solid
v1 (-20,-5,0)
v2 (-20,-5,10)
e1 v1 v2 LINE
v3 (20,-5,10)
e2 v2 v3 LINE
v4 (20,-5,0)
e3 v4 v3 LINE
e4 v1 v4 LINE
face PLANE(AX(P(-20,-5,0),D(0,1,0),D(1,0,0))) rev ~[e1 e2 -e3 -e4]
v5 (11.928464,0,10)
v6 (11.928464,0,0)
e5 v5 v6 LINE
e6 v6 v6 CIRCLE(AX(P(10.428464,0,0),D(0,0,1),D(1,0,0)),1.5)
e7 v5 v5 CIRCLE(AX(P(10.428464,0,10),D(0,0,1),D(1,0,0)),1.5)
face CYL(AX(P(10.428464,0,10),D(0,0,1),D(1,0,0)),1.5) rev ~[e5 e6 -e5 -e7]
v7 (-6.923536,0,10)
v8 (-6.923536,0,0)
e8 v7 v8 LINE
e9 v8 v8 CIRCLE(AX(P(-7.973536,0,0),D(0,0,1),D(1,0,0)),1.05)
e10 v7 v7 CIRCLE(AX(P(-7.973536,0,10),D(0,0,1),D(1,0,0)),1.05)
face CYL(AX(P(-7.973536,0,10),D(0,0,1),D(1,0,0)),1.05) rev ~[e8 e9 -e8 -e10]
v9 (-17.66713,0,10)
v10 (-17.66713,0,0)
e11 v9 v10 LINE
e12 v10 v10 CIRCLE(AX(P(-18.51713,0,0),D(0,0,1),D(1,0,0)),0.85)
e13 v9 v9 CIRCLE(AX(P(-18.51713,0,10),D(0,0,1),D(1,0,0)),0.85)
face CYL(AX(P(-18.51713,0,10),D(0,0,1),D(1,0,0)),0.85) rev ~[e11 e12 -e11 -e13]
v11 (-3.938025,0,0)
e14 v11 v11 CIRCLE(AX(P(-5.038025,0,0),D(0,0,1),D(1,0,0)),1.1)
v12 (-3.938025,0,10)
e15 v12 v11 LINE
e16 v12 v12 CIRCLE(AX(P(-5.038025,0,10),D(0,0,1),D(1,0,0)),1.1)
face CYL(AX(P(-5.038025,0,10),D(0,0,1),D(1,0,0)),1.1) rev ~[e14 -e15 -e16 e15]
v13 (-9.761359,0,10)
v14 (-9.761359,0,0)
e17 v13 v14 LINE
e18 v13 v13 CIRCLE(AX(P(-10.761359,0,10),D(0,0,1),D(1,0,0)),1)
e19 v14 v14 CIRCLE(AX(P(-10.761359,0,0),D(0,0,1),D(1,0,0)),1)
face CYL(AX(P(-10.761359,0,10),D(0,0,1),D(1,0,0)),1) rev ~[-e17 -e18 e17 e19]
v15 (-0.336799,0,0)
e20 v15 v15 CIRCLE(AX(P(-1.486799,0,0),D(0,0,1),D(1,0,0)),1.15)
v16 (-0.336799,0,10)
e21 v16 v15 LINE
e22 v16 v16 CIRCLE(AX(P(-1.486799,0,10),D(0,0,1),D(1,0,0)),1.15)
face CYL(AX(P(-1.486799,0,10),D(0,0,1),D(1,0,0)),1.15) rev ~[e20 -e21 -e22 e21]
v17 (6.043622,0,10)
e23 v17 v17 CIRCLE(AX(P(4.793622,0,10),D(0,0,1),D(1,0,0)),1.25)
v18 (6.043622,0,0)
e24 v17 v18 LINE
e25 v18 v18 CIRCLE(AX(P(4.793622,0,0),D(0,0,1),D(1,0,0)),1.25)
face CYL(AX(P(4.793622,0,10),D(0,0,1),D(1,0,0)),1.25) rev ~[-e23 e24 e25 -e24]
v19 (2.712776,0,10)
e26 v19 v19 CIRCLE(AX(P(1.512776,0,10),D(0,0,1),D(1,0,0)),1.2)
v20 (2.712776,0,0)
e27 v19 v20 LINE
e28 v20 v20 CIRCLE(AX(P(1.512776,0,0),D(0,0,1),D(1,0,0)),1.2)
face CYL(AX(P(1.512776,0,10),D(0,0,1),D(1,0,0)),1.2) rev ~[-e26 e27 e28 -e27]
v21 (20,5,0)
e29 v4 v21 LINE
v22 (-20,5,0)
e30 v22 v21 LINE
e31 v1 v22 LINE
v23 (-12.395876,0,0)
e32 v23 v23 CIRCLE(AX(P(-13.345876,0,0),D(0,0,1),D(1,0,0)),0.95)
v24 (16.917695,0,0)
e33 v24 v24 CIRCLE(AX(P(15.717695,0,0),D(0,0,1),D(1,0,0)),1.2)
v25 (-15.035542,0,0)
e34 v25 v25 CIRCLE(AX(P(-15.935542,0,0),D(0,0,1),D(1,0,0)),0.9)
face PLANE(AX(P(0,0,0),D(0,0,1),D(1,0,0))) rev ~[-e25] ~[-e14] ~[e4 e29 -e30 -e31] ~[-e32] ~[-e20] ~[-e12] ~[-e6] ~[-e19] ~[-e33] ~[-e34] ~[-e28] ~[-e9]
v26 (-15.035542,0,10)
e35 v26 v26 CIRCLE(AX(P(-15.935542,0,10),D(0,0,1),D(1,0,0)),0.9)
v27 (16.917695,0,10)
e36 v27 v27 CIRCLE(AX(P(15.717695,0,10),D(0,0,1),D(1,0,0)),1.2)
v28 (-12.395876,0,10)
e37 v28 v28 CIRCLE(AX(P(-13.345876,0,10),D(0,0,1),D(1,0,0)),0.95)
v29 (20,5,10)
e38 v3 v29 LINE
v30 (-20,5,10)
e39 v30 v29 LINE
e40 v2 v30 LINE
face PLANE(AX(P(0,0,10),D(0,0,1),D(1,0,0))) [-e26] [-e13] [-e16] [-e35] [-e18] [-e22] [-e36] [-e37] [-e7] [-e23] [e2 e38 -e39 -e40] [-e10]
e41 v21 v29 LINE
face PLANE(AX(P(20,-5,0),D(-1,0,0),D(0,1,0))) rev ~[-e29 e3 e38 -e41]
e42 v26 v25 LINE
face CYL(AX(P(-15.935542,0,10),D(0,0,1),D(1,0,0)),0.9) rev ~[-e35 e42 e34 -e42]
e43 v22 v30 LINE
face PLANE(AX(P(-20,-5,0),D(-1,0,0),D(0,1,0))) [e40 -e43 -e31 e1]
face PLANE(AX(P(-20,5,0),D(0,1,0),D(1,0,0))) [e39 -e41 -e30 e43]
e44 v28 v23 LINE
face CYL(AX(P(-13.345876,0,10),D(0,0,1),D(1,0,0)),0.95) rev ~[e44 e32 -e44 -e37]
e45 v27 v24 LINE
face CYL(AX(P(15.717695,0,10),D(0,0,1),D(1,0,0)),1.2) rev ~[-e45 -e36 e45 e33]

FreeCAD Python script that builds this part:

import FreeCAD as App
import Part
import Sketcher


def add_polygon(sketch, points):
    """Adds a closed chain of lines whose ends are joined by coincident constraints."""
    first, n = sketch.GeometryCount, len(points)
    for a, b in zip(points, points[1:] + points[:1]):
        sketch.addGeometry(Part.LineSegment(App.Vector(*a, 0), App.Vector(*b, 0)), False)
    for i in range(n):
        sketch.addConstraint(Sketcher.Constraint("Coincident", first + i, 2, first + (i + 1) % n, 1))

doc = App.newDocument("Part")
params = doc.addObject("Spreadsheet::Sheet", "Params")
for row, (alias, value) in enumerate([
    ("sketch1_width", "40 mm"),
    ("sketch1_height", "10 mm"),
    ("pad1_length", "10 mm"),
    ("sketch2_diameter", "1.7 mm"),
    ("pocket1_length", "25 mm"),
    ("sketch3_diameter", "1.8 mm"),
    ("pocket2_length", "25 mm"),
    ("sketch4_diameter", "1.9 mm"),
    ("pocket3_length", "25 mm"),
    ("sketch5_diameter", "2 mm"),
    ("pocket4_length", "25 mm"),
    ("sketch6_diameter", "2.1 mm"),
    ("pocket5_length", "25 mm"),
    ("sketch7_diameter", "2.2 mm"),
    ("pocket6_length", "25 mm"),
    ("sketch8_diameter", "2.3 mm"),
    ("pocket7_length", "25 mm"),
    ("sketch9_diameter", "2.4 mm"),
    ("pocket8_length", "25 mm"),
    ("sketch10_diameter", "2.5 mm"),
    ("pocket9_length", "25 mm"),
    ("sketch11_diameter", "2.4 mm"),
    ("pocket10_length", "25 mm"),
    ("sketch12_diameter", "3 mm"),
    ("pocket11_length", "25 mm"),
], start=1):
    params.set(f"A{row}", alias)
    params.set(f"B{row}", "=" + value)
    params.setAlias(f"B{row}", alias)

body = doc.addObject("PartDesign::Body", "Body")

sketch1 = doc.addObject("Sketcher::SketchObject", "Sketch")
body.addObject(sketch1)
sketch1.AttachmentSupport = (doc.XY_Plane, [""])
sketch1.MapMode = "FlatFace"
add_polygon(sketch1, [(-20, 5), (-20, -5), (20, -5), (20, 5)])
sketch1.addConstraint([
    Sketcher.Constraint("Vertical", 0),
    Sketcher.Constraint("Horizontal", 1),
    Sketcher.Constraint("Vertical", 2),
    Sketcher.Constraint("Horizontal", 3),
    Sketcher.Constraint("Symmetric", 0, 2, 2, 2, -1, 1),
    Sketcher.Constraint("DistanceX", 1, 1, 1, 2, 40.0),
    Sketcher.Constraint("DistanceY", 0, 2, 0, 1, 10.0),
])
sketch1.setExpression("Constraints[9]", "Params.sketch1_width")
sketch1.setExpression("Constraints[10]", "Params.sketch1_height")
pad1 = doc.addObject("PartDesign::Pad", "Pad")
body.addObject(pad1)
pad1.Profile = sketch1
pad1.setExpression("Length", "Params.pad1_length")

sketch2 = doc.addObject("Sketcher::SketchObject", "Sketch001")
body.addObject(sketch2)
sketch2.AttachmentSupport = (doc.XY_Plane, [""])
sketch2.MapMode = "FlatFace"
sketch2.AttachmentOffset = App.Placement(App.Vector(0, 0, 10), App.Rotation())
sketch2.addGeometry(Part.Circle(App.Vector(-18.51713, 0, 0), App.Vector(0, 0, 1), 0.85), False)
sketch2.addConstraint([
    Sketcher.Constraint("PointOnObject", 0, 3, -1),
    Sketcher.Constraint("Diameter", 0, 1.7),
    Sketcher.Constraint("DistanceX", 0, 3, -1, 1, 18.51713),
])
sketch2.setExpression("Constraints[1]", "Params.sketch2_diameter")
pocket1 = doc.addObject("PartDesign::Pocket", "Pocket")
body.addObject(pocket1)
pocket1.Profile = sketch2
pocket1.setExpression("Length", "Params.pocket1_length")

sketch3 = doc.addObject("Sketcher::SketchObject", "Sketch002")
body.addObject(sketch3)
sketch3.AttachmentSupport = (doc.XY_Plane, [""])
sketch3.MapMode = "FlatFace"
sketch3.AttachmentOffset = App.Placement(App.Vector(0, 0, 10), App.Rotation())
sketch3.addGeometry(Part.Circle(App.Vector(-15.935542, 0, 0), App.Vector(0, 0, 1), 0.9), False)
sketch3.addConstraint([
    Sketcher.Constraint("PointOnObject", 0, 3, -1),
    Sketcher.Constraint("Diameter", 0, 1.8),
    Sketcher.Constraint("DistanceX", 0, 3, -1, 1, 15.935542),
])
sketch3.setExpression("Constraints[1]", "Params.sketch3_diameter")
pocket2 = doc.addObject("PartDesign::Pocket", "Pocket001")
body.addObject(pocket2)
pocket2.Profile = sketch3
pocket2.setExpression("Length", "Params.pocket2_length")

sketch4 = doc.addObject("Sketcher::SketchObject", "Sketch003")
body.addObject(sketch4)
sketch4.AttachmentSupport = (doc.XY_Plane, [""])
sketch4.MapMode = "FlatFace"
sketch4.AttachmentOffset = App.Placement(App.Vector(0, 0, 10), App.Rotation())
sketch4.addGeometry(Part.Circle(App.Vector(-13.345876, 0, 0), App.Vector(0, 0, 1), 0.95), False)
sketch4.addConstraint([
    Sketcher.Constraint("PointOnObject", 0, 3, -1),
    Sketcher.Constraint("Diameter", 0, 1.9),
    Sketcher.Constraint("DistanceX", 0, 3, -1, 1, 13.345876),
])
sketch4.setExpression("Constraints[1]", "Params.sketch4_diameter")
pocket3 = doc.addObject("PartDesign::Pocket", "Pocket002")
body.addObject(pocket3)
pocket3.Profile = sketch4
pocket3.setExpression("Length", "Params.pocket3_length")

sketch5 = doc.addObject("Sketcher::SketchObject", "Sketch004")
body.addObject(sketch5)
sketch5.AttachmentSupport = (doc.XY_Plane, [""])
sketch5.MapMode = "FlatFace"
sketch5.AttachmentOffset = App.Placement(App.Vector(0, 0, 10), App.Rotation())
sketch5.addGeometry(Part.Circle(App.Vector(-10.761359, 0, 0), App.Vector(0, 0, 1), 1), False)
sketch5.addConstraint([
    Sketcher.Constraint("PointOnObject", 0, 3, -1),
    Sketcher.Constraint("Diameter", 0, 2.0),
    Sketcher.Constraint("DistanceX", 0, 3, -1, 1, 10.761359),
])
sketch5.setExpression("Constraints[1]", "Params.sketch5_diameter")
pocket4 = doc.addObject("PartDesign::Pocket", "Pocket003")
body.addObject(pocket4)
pocket4.Profile = sketch5
pocket4.setExpression("Length", "Params.pocket4_length")

sketch6 = doc.addObject("Sketcher::SketchObject", "Sketch005")
body.addObject(sketch6)
sketch6.AttachmentSupport = (doc.XY_Plane, [""])
sketch6.MapMode = "FlatFace"
sketch6.AttachmentOffset = App.Placement(App.Vector(0, 0, 10), App.Rotation())
sketch6.addGeometry(Part.Circle(App.Vector(-7.973536, 0, 0), App.Vector(0, 0, 1), 1.05), False)
sketch6.addConstraint([
    Sketcher.Constraint("PointOnObject", 0, 3, -1),
    Sketcher.Constraint("Diameter", 0, 2.1),
    Sketcher.Constraint("DistanceX", 0, 3, -1, 1, 7.973536),
])
sketch6.setExpression("Constraints[1]", "Params.sketch6_diameter")
pocket5 = doc.addObject("PartDesign::Pocket", "Pocket004")
body.addObject(pocket5)
pocket5.Profile = sketch6
pocket5.setExpression("Length", "Params.pocket5_length")

sketch7 = doc.addObject("Sketcher::SketchObject", "Sketch006")
body.addObject(sketch7)
sketch7.AttachmentSupport = (doc.XY_Plane, [""])
sketch7.MapMode = "FlatFace"
sketch7.AttachmentOffset = App.Placement(App.Vector(0, 0, 10), App.Rotation())
sketch7.addGeometry(Part.Circle(App.Vector(-5.038025, 0, 0), App.Vector(0, 0, 1), 1.1), False)
sketch7.addConstraint([
    Sketcher.Constraint("PointOnObject", 0, 3, -1),
    Sketcher.Constraint("Diameter", 0, 2.2),
    Sketcher.Constraint("DistanceX", 0, 3, -1, 1, 5.038025),
])
sketch7.setExpression("Constraints[1]", "Params.sketch7_diameter")
pocket6 = doc.addObject("PartDesign::Pocket", "Pocket005")
body.addObject(pocket6)
pocket6.Profile = sketch7
pocket6.setExpression("Length", "Params.pocket6_length")

sketch8 = doc.addObject("Sketcher::SketchObject", "Sketch007")
body.addObject(sketch8)
sketch8.AttachmentSupport = (doc.XY_Plane, [""])
sketch8.MapMode = "FlatFace"
sketch8.AttachmentOffset = App.Placement(App.Vector(0, 0, 10), App.Rotation())
sketch8.addGeometry(Part.Circle(App.Vector(-1.486799, 0, 0), App.Vector(0, 0, 1), 1.15), False)
sketch8.addConstraint([
    Sketcher.Constraint("PointOnObject", 0, 3, -1),
    Sketcher.Constraint("Diameter", 0, 2.3),
    Sketcher.Constraint("DistanceX", 0, 3, -1, 1, 1.486799),
])
sketch8.setExpression("Constraints[1]", "Params.sketch8_diameter")
pocket7 = doc.addObject("PartDesign::Pocket", "Pocket006")
body.addObject(pocket7)
pocket7.Profile = sketch8
pocket7.setExpression("Length", "Params.pocket7_length")

sketch9 = doc.addObject("Sketcher::SketchObject", "Sketch008")
body.addObject(sketch9)
sketch9.AttachmentSupport = (doc.XY_Plane, [""])
sketch9.MapMode = "FlatFace"
sketch9.AttachmentOffset = App.Placement(App.Vector(0, 0, 10), App.Rotation())
sketch9.addGeometry(Part.Circle(App.Vector(1.512776, 0, 0), App.Vector(0, 0, 1), 1.2), False)
sketch9.addConstraint([
    Sketcher.Constraint("PointOnObject", 0, 3, -1),
    Sketcher.Constraint("Diameter", 0, 2.4),
    Sketcher.Constraint("DistanceX", -1, 1, 0, 3, 1.512776),
])
sketch9.setExpression("Constraints[1]", "Params.sketch9_diameter")
pocket8 = doc.addObject("PartDesign::Pocket", "Pocket007")
body.addObject(pocket8)
pocket8.Profile = sketch9
pocket8.setExpression("Length", "Params.pocket8_length")

sketch10 = doc.addObject("Sketcher::SketchObject", "Sketch009")
body.addObject(sketch10)
sketch10.AttachmentSupport = (doc.XY_Plane, [""])
sketch10.MapMode = "FlatFace"
sketch10.AttachmentOffset = App.Placement(App.Vector(0, 0, 10), App.Rotation())
sketch10.addGeometry(Part.Circle(App.Vector(4.793622, 0, 0), App.Vector(0, 0, 1), 1.25), False)
sketch10.addConstraint([
    Sketcher.Constraint("PointOnObject", 0, 3, -1),
    Sketcher.Constraint("Diameter", 0, 2.5),
    Sketcher.Constraint("DistanceX", -1, 1, 0, 3, 4.793622),
])
sketch10.setExpression("Constraints[1]", "Params.sketch10_diameter")
pocket9 = doc.addObject("PartDesign::Pocket", "Pocket008")
body.addObject(pocket9)
pocket9.Profile = sketch10
pocket9.setExpression("Length", "Params.pocket9_length")

sketch11 = doc.addObject("Sketcher::SketchObject", "Sketch010")
body.addObject(sketch11)
sketch11.AttachmentSupport = (doc.XY_Plane, [""])
sketch11.MapMode = "FlatFace"
sketch11.AttachmentOffset = App.Placement(App.Vector(0, 0, 10), App.Rotation())
sketch11.addGeometry(Part.Circle(App.Vector(15.717695, 0, 0), App.Vector(0, 0, 1), 1.2), False)
sketch11.addConstraint([
    Sketcher.Constraint("PointOnObject", 0, 3, -1),
    Sketcher.Constraint("Diameter", 0, 2.4),
    Sketcher.Constraint("DistanceX", -1, 1, 0, 3, 15.717695),
])
sketch11.setExpression("Constraints[1]", "Params.sketch11_diameter")
pocket10 = doc.addObject("PartDesign::Pocket", "Pocket009")
body.addObject(pocket10)
pocket10.Profile = sketch11
pocket10.setExpression("Length", "Params.pocket10_length")

sketch12 = doc.addObject("Sketcher::SketchObject", "Sketch011")
body.addObject(sketch12)
sketch12.AttachmentSupport = (doc.XY_Plane, [""])
sketch12.MapMode = "FlatFace"
sketch12.AttachmentOffset = App.Placement(App.Vector(0, 0, 10), App.Rotation())
sketch12.addGeometry(Part.Circle(App.Vector(10.428464, 0, 0), App.Vector(0, 0, 1), 1.5), False)
sketch12.addConstraint([
    Sketcher.Constraint("PointOnObject", 0, 3, -1),
    Sketcher.Constraint("Diameter", 0, 3.0),
    Sketcher.Constraint("DistanceX", -1, 1, 0, 3, 10.428464),
])
sketch12.setExpression("Constraints[1]", "Params.sketch12_diameter")
pocket11 = doc.addObject("PartDesign::Pocket", "Pocket010")
body.addObject(pocket11)
pocket11.Profile = sketch12
pocket11.setExpression("Length", "Params.pocket11_length")

doc.recompute()
